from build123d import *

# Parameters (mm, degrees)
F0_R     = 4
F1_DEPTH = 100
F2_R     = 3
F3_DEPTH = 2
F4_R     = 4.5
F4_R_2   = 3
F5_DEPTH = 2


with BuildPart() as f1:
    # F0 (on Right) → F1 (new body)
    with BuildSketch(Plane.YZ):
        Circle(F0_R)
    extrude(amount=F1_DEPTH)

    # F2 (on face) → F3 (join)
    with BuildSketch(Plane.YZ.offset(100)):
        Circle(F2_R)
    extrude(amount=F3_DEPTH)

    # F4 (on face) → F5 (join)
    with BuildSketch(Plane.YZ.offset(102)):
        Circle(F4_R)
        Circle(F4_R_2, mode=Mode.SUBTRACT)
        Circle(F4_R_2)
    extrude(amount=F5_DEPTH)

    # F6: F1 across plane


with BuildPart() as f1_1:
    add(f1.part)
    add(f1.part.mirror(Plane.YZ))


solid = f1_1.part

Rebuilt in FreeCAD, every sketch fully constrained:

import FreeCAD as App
import Part
import Sketcher
Q = App.Units.Quantity

doc = App.newDocument("Part")
body = doc.addObject("PartDesign::Body", "Body")

sketch1 = doc.addObject("Sketcher::SketchObject", "Sketch")
body.addObject(sketch1)
sketch1.AttachmentSupport = (doc.YZ_Plane, [""])
sketch1.MapMode = "FlatFace"
sketch1.addGeometry(Part.Circle(App.Vector(0, 0, 0), App.Vector(0, 0, 1), 4), False)
sketch1.addConstraint([
    Sketcher.Constraint("Coincident", 0, 3, -1, 1),
    Sketcher.Constraint("Diameter", 0, Q("8 mm")),
])
pad1 = doc.addObject("PartDesign::Pad", "Pad")
body.addObject(pad1)
pad1.Profile = sketch1
pad1.Length = 100

sketch2 = doc.addObject("Sketcher::SketchObject", "Sketch001")
body.addObject(sketch2)
sketch2.AttachmentSupport = (doc.YZ_Plane, [""])
sketch2.MapMode = "FlatFace"
sketch2.AttachmentOffset = App.Placement(App.Vector(0, 0, 100), App.Rotation())
sketch2.addGeometry(Part.Circle(App.Vector(0, 0, 0), App.Vector(0, 0, 1), 3), False)
sketch2.addConstraint([
    Sketcher.Constraint("Coincident", 0, 3, -1, 1),
    Sketcher.Constraint("Diameter", 0, Q("6 mm")),
])
pad2 = doc.addObject("PartDesign::Pad", "Pad001")
body.addObject(pad2)
pad2.Profile = sketch2
pad2.Length = 2

sketch3 = doc.addObject("Sketcher::SketchObject", "Sketch002")
body.addObject(sketch3)
sketch3.AttachmentSupport = (doc.YZ_Plane, [""])
sketch3.MapMode = "FlatFace"
sketch3.AttachmentOffset = App.Placement(App.Vector(0, 0, 102), App.Rotation())
sketch3.addGeometry(Part.Circle(App.Vector(0, 0, 0), App.Vector(0, 0, 1), 4.5), False)
sketch3.addConstraint([
    Sketcher.Constraint("Coincident", 0, 3, -1, 1),
    Sketcher.Constraint("Diameter", 0, Q("9 mm")),
])
pad3 = doc.addObject("PartDesign::Pad", "Pad002")
body.addObject(pad3)
pad3.Profile = sketch3
pad3.Length = 2
body2 = doc.addObject("PartDesign::Body", "Body001")
doc.recompute()

body2.BaseFeature = body
doc.recompute()

mirroring = doc.addObject("Part::Mirroring", "Mirroring")
mirroring.Source = body
mirroring.Base = App.Vector(0, 0, 0)
mirroring.Normal = App.Vector(1, 0, 0)
body3 = doc.addObject("PartDesign::Body", "Body002")
body3.BaseFeature = mirroring
boolean = doc.addObject("PartDesign::Boolean", "Boolean")
body2.addObject(boolean)
boolean.Type = "Fuse"
boolean.addObjects([body3])
doc.recompute()
mirroring.Visibility = False

doc.recompute()
